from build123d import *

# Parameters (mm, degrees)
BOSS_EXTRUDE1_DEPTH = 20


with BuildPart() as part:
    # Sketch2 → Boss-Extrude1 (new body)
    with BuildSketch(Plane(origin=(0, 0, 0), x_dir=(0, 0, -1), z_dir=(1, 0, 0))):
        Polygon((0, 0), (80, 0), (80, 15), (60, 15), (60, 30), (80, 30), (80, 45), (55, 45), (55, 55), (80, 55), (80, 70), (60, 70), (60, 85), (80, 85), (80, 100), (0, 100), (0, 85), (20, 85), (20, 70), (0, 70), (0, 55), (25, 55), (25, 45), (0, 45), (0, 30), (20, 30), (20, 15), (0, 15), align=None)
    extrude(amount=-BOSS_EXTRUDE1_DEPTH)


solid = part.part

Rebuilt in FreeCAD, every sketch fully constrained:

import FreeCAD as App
import Part
import Sketcher

V = App.Vector
Q = App.Units.Quantity

doc = App.newDocument("Part")
body = doc.addObject("PartDesign::Body", "Body")

# Sketch on YZ plane
sketch1 = body.newObject("Sketcher::SketchObject", "Sketch")
sketch1.AttachmentSupport = (doc.getObject("YZ_Plane"), [""])
sketch1.MapMode = "FlatFace"
sketch1.addGeometry([
    Part.LineSegment(V(0, 0, 0), V(0, -80, 0)),  # 0
    Part.LineSegment(V(0, -80, 0), V(15, -80, 0)),  # 1
    Part.LineSegment(V(15, -80, 0), V(15, -60, 0)),  # 2
    Part.LineSegment(V(15, -60, 0), V(30, -60, 0)),  # 3
    Part.LineSegment(V(30, -60, 0), V(30, -80, 0)),  # 4
    Part.LineSegment(V(30, -80, 0), V(45, -80, 0)),  # 5
    Part.LineSegment(V(45, -80, 0), V(45, -55, 0)),  # 6
    Part.LineSegment(V(45, -55, 0), V(55, -55, 0)),  # 7
    Part.LineSegment(V(55, -55, 0), V(55, -80, 0)),  # 8
    Part.LineSegment(V(55, -80, 0), V(70, -80, 0)),  # 9
    Part.LineSegment(V(70, -80, 0), V(70, -60, 0)),  # 10
    Part.LineSegment(V(70, -60, 0), V(85, -60, 0)),  # 11
    Part.LineSegment(V(85, -60, 0), V(85, -80, 0)),  # 12
    Part.LineSegment(V(85, -80, 0), V(100, -80, 0)),  # 13
    Part.LineSegment(V(100, -80, 0), V(100, 0, 0)),  # 14
    Part.LineSegment(V(100, 0, 0), V(85, 0, 0)),  # 15
    Part.LineSegment(V(85, 0, 0), V(85, -20, 0)),  # 16
    Part.LineSegment(V(85, -20, 0), V(70, -20, 0)),  # 17
    Part.LineSegment(V(70, -20, 0), V(70, 0, 0)),  # 18
    Part.LineSegment(V(70, 0, 0), V(55, 0, 0)),  # 19
    Part.LineSegment(V(55, 0, 0), V(55, -25, 0)),  # 20
    Part.LineSegment(V(55, -25, 0), V(45, -25, 0)),  # 21
    Part.LineSegment(V(45, -25, 0), V(45, 0, 0)),  # 22
    Part.LineSegment(V(45, 0, 0), V(30, 0, 0)),  # 23
    Part.LineSegment(V(30, 0, 0), V(30, -20, 0)),  # 24
    Part.LineSegment(V(30, -20, 0), V(15, -20, 0)),  # 25
    Part.LineSegment(V(15, -20, 0), V(15, 0, 0)),  # 26
    Part.LineSegment(V(15, 0, 0), V(0, 0, 0)),  # 27
], False)
sketch1.addConstraint([
    Sketcher.Constraint("Coincident", 0, 2, 1, 1),
    Sketcher.Constraint("Coincident", 1, 2, 2, 1),
    Sketcher.Constraint("Coincident", 2, 2, 3, 1),
    Sketcher.Constraint("Coincident", 3, 2, 4, 1),
    Sketcher.Constraint("Coincident", 4, 2, 5, 1),
    Sketcher.Constraint("Coincident", 5, 2, 6, 1),
    Sketcher.Constraint("Coincident", 6, 2, 7, 1),
    Sketcher.Constraint("Coincident", 7, 2, 8, 1),
    Sketcher.Constraint("Coincident", 8, 2, 9, 1),
    Sketcher.Constraint("Coincident", 9, 2, 10, 1),
    Sketcher.Constraint("Coincident", 10, 2, 11, 1),
    Sketcher.Constraint("Coincident", 11, 2, 12, 1),
    Sketcher.Constraint("Coincident", 12, 2, 13, 1),
    Sketcher.Constraint("Coincident", 13, 2, 14, 1),
    Sketcher.Constraint("Coincident", 14, 2, 15, 1),
    Sketcher.Constraint("Coincident", 15, 2, 16, 1),
    Sketcher.Constraint("Coincident", 16, 2, 17, 1),
    Sketcher.Constraint("Coincident", 17, 2, 18, 1),
    Sketcher.Constraint("Coincident", 18, 2, 19, 1),
    Sketcher.Constraint("Coincident", 19, 2, 20, 1),
    Sketcher.Constraint("Coincident", 20, 2, 21, 1),
    Sketcher.Constraint("Coincident", 21, 2, 22, 1),
    Sketcher.Constraint("Coincident", 22, 2, 23, 1),
    Sketcher.Constraint("Coincident", 23, 2, 24, 1),
    Sketcher.Constraint("Coincident", 24, 2, 25, 1),
    Sketcher.Constraint("Coincident", 25, 2, 26, 1),
    Sketcher.Constraint("Coincident", 26, 2, 27, 1),
    Sketcher.Constraint("Coincident", 27, 2, 0, 1),
    Sketcher.Constraint("Vertical", 0),
    Sketcher.Constraint("Horizontal", 1),
    Sketcher.Constraint("Vertical", 2),
    Sketcher.Constraint("Horizontal", 3),
    Sketcher.Constraint("Vertical", 4),
    Sketcher.Constraint("Horizontal", 5),
    Sketcher.Constraint("Vertical", 6),
    Sketcher.Constraint("Horizontal", 7),
    Sketcher.Constraint("Vertical", 8),
    Sketcher.Constraint("Horizontal", 9),
    Sketcher.Constraint("Vertical", 10),
    Sketcher.Constraint("Horizontal", 11),
    Sketcher.Constraint("Vertical", 12),
    Sketcher.Constraint("Horizontal", 13),
    Sketcher.Constraint("Vertical", 14),
    Sketcher.Constraint("Horizontal", 15),
    Sketcher.Constraint("Vertical", 16),
    Sketcher.Constraint("Horizontal", 17),
    Sketcher.Constraint("Vertical", 18),
    Sketcher.Constraint("Horizontal", 19),
    Sketcher.Constraint("Vertical", 20),
    Sketcher.Constraint("Horizontal", 21),
    Sketcher.Constraint("Vertical", 22),
    Sketcher.Constraint("Horizontal", 23),
    Sketcher.Constraint("Vertical", 24),
    Sketcher.Constraint("Horizontal", 25),
    Sketcher.Constraint("Vertical", 26),
    Sketcher.Constraint("Horizontal", 27),
    Sketcher.Constraint("Coincident", 27, 2, -1, 1),
    Sketcher.Constraint("PointOnObject", 14, 2, -1),
    Sketcher.Constraint("PointOnObject", 18, 2, -1),
    Sketcher.Constraint("PointOnObject", 22, 2, -1),
    Sketcher.Constraint("Horizontal", 1, 2, 4, 2),
    Sketcher.Constraint("Horizontal", 5, 2, 8, 2),
    Sketcher.Constraint("Horizontal", 3, 2, 10, 2),
    Sketcher.Constraint("Horizontal", 9, 2, 12, 2),
    Sketcher.Constraint("Horizontal", 17, 2, 24, 2),
    Sketcher.Constraint("Vertical", 12, 2, 15, 2),
    Sketcher.Constraint("Vertical", 10, 2, 17, 2),
    Sketcher.Constraint("Vertical", 8, 2, 19, 2),
    Sketcher.Constraint("Vertical", 6, 2, 21, 2),
    Sketcher.Constraint("Vertical", 4, 2, 23, 2),
    Sketcher.Constraint("Vertical", 2, 2, 25, 2),
    Sketcher.Constraint("Equal", 1, 3),
    Sketcher.Constraint("Equal", 3, 5),
    Sketcher.Constraint("Equal", 5, 9),
    Sketcher.Constraint("Equal", 9, 11),
    Sketcher.Constraint("Equal", 11, 13),
    Sketcher.Constraint("Equal", 12, 16),
    Sketcher.Constraint("Equal", 8, 20),
    Sketcher.Constraint("DistanceX", 1, 1, 1, 2, Q("15 mm")),
    Sketcher.Constraint("DistanceX", 7, 1, 7, 2, Q("10 mm")),
    Sketcher.Constraint("DistanceY", 0, 2, 0, 1, Q("80 mm")),
    Sketcher.Constraint("DistanceY", 2, 1, 2, 2, Q("20 mm")),
    Sketcher.Constraint("DistanceY", 6, 1, 6, 2, Q("25 mm")),
])
pad1 = body.newObject("PartDesign::Pad", "Pad")
pad1.Profile = sketch1
pad1.Length = 20
pad1.Reversed = True

doc.recompute()
